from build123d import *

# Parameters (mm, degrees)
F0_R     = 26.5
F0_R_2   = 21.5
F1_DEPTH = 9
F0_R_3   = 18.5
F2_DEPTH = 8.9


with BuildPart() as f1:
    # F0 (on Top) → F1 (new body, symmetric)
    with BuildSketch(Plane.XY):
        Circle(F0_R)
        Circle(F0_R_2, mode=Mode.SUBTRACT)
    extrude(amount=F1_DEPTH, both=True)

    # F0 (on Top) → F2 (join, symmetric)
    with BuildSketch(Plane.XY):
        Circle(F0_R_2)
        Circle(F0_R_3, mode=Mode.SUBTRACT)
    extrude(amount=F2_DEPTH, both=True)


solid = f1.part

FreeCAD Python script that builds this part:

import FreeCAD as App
import Part
import Sketcher

doc = App.newDocument("Part")
params = doc.addObject("Spreadsheet::Sheet", "Params")
for row, (alias, value) in enumerate([
    ("sketch1_diameter", "53 mm"),
    ("sketch1_diameter2", "43 mm"),
    ("pad1_length", "18 mm"),
    ("sketch2_diameter", "43 mm"),
    ("sketch2_diameter2", "37 mm"),
    ("pad2_length", "17.8 mm"),
], start=1):
    params.set(f"A{row}", alias)
    params.set(f"B{row}", "=" + value)
    params.setAlias(f"B{row}", alias)

body = doc.addObject("PartDesign::Body", "Body")

sketch1 = body.newObject("Sketcher::SketchObject", "Sketch")
sketch1.AttachmentSupport = (doc.getObject("XY_Plane"), [""])
sketch1.MapMode = "FlatFace"
sketch1.addGeometry([
    Part.Circle(App.Vector(0, 0, 0), App.Vector(0, 0, 1), 26.5),
    Part.Circle(App.Vector(0, 0, 0), App.Vector(0, 0, 1), 21.5),
], False)
sketch1.addConstraint([
    Sketcher.Constraint("Coincident", 0, 3, -1, 1),
    Sketcher.Constraint("Coincident", 1, 3, -1, 1),
    Sketcher.Constraint("Diameter", 0, 53.0),
    Sketcher.Constraint("Diameter", 1, 43.0),
])
sketch1.setExpression("Constraints[2]", "Params.sketch1_diameter")
sketch1.setExpression("Constraints[3]", "Params.sketch1_diameter2")
pad1 = body.newObject("PartDesign::Pad", "Pad")
pad1.Profile = sketch1
pad1.setExpression("Length", "Params.pad1_length")
pad1.Midplane = True

sketch2 = body.newObject("Sketcher::SketchObject", "Sketch001")
sketch2.AttachmentSupport = (doc.getObject("XY_Plane"), [""])
sketch2.MapMode = "FlatFace"
sketch2.addGeometry([
    Part.Circle(App.Vector(0, 0, 0), App.Vector(0, 0, 1), 21.5),
    Part.Circle(App.Vector(0, 0, 0), App.Vector(0, 0, 1), 18.5),
], False)
sketch2.addConstraint([
    Sketcher.Constraint("Coincident", 0, 3, -1, 1),
    Sketcher.Constraint("Coincident", 1, 3, -1, 1),
    Sketcher.Constraint("Diameter", 0, 43.0),
    Sketcher.Constraint("Diameter", 1, 37.0),
])
sketch2.setExpression("Constraints[2]", "Params.sketch2_diameter")
sketch2.setExpression("Constraints[3]", "Params.sketch2_diameter2")
pad2 = body.newObject("PartDesign::Pad", "Pad001")
pad2.Profile = sketch2
pad2.setExpression("Length", "Params.pad2_length")
pad2.Midplane = True

doc.recompute()
